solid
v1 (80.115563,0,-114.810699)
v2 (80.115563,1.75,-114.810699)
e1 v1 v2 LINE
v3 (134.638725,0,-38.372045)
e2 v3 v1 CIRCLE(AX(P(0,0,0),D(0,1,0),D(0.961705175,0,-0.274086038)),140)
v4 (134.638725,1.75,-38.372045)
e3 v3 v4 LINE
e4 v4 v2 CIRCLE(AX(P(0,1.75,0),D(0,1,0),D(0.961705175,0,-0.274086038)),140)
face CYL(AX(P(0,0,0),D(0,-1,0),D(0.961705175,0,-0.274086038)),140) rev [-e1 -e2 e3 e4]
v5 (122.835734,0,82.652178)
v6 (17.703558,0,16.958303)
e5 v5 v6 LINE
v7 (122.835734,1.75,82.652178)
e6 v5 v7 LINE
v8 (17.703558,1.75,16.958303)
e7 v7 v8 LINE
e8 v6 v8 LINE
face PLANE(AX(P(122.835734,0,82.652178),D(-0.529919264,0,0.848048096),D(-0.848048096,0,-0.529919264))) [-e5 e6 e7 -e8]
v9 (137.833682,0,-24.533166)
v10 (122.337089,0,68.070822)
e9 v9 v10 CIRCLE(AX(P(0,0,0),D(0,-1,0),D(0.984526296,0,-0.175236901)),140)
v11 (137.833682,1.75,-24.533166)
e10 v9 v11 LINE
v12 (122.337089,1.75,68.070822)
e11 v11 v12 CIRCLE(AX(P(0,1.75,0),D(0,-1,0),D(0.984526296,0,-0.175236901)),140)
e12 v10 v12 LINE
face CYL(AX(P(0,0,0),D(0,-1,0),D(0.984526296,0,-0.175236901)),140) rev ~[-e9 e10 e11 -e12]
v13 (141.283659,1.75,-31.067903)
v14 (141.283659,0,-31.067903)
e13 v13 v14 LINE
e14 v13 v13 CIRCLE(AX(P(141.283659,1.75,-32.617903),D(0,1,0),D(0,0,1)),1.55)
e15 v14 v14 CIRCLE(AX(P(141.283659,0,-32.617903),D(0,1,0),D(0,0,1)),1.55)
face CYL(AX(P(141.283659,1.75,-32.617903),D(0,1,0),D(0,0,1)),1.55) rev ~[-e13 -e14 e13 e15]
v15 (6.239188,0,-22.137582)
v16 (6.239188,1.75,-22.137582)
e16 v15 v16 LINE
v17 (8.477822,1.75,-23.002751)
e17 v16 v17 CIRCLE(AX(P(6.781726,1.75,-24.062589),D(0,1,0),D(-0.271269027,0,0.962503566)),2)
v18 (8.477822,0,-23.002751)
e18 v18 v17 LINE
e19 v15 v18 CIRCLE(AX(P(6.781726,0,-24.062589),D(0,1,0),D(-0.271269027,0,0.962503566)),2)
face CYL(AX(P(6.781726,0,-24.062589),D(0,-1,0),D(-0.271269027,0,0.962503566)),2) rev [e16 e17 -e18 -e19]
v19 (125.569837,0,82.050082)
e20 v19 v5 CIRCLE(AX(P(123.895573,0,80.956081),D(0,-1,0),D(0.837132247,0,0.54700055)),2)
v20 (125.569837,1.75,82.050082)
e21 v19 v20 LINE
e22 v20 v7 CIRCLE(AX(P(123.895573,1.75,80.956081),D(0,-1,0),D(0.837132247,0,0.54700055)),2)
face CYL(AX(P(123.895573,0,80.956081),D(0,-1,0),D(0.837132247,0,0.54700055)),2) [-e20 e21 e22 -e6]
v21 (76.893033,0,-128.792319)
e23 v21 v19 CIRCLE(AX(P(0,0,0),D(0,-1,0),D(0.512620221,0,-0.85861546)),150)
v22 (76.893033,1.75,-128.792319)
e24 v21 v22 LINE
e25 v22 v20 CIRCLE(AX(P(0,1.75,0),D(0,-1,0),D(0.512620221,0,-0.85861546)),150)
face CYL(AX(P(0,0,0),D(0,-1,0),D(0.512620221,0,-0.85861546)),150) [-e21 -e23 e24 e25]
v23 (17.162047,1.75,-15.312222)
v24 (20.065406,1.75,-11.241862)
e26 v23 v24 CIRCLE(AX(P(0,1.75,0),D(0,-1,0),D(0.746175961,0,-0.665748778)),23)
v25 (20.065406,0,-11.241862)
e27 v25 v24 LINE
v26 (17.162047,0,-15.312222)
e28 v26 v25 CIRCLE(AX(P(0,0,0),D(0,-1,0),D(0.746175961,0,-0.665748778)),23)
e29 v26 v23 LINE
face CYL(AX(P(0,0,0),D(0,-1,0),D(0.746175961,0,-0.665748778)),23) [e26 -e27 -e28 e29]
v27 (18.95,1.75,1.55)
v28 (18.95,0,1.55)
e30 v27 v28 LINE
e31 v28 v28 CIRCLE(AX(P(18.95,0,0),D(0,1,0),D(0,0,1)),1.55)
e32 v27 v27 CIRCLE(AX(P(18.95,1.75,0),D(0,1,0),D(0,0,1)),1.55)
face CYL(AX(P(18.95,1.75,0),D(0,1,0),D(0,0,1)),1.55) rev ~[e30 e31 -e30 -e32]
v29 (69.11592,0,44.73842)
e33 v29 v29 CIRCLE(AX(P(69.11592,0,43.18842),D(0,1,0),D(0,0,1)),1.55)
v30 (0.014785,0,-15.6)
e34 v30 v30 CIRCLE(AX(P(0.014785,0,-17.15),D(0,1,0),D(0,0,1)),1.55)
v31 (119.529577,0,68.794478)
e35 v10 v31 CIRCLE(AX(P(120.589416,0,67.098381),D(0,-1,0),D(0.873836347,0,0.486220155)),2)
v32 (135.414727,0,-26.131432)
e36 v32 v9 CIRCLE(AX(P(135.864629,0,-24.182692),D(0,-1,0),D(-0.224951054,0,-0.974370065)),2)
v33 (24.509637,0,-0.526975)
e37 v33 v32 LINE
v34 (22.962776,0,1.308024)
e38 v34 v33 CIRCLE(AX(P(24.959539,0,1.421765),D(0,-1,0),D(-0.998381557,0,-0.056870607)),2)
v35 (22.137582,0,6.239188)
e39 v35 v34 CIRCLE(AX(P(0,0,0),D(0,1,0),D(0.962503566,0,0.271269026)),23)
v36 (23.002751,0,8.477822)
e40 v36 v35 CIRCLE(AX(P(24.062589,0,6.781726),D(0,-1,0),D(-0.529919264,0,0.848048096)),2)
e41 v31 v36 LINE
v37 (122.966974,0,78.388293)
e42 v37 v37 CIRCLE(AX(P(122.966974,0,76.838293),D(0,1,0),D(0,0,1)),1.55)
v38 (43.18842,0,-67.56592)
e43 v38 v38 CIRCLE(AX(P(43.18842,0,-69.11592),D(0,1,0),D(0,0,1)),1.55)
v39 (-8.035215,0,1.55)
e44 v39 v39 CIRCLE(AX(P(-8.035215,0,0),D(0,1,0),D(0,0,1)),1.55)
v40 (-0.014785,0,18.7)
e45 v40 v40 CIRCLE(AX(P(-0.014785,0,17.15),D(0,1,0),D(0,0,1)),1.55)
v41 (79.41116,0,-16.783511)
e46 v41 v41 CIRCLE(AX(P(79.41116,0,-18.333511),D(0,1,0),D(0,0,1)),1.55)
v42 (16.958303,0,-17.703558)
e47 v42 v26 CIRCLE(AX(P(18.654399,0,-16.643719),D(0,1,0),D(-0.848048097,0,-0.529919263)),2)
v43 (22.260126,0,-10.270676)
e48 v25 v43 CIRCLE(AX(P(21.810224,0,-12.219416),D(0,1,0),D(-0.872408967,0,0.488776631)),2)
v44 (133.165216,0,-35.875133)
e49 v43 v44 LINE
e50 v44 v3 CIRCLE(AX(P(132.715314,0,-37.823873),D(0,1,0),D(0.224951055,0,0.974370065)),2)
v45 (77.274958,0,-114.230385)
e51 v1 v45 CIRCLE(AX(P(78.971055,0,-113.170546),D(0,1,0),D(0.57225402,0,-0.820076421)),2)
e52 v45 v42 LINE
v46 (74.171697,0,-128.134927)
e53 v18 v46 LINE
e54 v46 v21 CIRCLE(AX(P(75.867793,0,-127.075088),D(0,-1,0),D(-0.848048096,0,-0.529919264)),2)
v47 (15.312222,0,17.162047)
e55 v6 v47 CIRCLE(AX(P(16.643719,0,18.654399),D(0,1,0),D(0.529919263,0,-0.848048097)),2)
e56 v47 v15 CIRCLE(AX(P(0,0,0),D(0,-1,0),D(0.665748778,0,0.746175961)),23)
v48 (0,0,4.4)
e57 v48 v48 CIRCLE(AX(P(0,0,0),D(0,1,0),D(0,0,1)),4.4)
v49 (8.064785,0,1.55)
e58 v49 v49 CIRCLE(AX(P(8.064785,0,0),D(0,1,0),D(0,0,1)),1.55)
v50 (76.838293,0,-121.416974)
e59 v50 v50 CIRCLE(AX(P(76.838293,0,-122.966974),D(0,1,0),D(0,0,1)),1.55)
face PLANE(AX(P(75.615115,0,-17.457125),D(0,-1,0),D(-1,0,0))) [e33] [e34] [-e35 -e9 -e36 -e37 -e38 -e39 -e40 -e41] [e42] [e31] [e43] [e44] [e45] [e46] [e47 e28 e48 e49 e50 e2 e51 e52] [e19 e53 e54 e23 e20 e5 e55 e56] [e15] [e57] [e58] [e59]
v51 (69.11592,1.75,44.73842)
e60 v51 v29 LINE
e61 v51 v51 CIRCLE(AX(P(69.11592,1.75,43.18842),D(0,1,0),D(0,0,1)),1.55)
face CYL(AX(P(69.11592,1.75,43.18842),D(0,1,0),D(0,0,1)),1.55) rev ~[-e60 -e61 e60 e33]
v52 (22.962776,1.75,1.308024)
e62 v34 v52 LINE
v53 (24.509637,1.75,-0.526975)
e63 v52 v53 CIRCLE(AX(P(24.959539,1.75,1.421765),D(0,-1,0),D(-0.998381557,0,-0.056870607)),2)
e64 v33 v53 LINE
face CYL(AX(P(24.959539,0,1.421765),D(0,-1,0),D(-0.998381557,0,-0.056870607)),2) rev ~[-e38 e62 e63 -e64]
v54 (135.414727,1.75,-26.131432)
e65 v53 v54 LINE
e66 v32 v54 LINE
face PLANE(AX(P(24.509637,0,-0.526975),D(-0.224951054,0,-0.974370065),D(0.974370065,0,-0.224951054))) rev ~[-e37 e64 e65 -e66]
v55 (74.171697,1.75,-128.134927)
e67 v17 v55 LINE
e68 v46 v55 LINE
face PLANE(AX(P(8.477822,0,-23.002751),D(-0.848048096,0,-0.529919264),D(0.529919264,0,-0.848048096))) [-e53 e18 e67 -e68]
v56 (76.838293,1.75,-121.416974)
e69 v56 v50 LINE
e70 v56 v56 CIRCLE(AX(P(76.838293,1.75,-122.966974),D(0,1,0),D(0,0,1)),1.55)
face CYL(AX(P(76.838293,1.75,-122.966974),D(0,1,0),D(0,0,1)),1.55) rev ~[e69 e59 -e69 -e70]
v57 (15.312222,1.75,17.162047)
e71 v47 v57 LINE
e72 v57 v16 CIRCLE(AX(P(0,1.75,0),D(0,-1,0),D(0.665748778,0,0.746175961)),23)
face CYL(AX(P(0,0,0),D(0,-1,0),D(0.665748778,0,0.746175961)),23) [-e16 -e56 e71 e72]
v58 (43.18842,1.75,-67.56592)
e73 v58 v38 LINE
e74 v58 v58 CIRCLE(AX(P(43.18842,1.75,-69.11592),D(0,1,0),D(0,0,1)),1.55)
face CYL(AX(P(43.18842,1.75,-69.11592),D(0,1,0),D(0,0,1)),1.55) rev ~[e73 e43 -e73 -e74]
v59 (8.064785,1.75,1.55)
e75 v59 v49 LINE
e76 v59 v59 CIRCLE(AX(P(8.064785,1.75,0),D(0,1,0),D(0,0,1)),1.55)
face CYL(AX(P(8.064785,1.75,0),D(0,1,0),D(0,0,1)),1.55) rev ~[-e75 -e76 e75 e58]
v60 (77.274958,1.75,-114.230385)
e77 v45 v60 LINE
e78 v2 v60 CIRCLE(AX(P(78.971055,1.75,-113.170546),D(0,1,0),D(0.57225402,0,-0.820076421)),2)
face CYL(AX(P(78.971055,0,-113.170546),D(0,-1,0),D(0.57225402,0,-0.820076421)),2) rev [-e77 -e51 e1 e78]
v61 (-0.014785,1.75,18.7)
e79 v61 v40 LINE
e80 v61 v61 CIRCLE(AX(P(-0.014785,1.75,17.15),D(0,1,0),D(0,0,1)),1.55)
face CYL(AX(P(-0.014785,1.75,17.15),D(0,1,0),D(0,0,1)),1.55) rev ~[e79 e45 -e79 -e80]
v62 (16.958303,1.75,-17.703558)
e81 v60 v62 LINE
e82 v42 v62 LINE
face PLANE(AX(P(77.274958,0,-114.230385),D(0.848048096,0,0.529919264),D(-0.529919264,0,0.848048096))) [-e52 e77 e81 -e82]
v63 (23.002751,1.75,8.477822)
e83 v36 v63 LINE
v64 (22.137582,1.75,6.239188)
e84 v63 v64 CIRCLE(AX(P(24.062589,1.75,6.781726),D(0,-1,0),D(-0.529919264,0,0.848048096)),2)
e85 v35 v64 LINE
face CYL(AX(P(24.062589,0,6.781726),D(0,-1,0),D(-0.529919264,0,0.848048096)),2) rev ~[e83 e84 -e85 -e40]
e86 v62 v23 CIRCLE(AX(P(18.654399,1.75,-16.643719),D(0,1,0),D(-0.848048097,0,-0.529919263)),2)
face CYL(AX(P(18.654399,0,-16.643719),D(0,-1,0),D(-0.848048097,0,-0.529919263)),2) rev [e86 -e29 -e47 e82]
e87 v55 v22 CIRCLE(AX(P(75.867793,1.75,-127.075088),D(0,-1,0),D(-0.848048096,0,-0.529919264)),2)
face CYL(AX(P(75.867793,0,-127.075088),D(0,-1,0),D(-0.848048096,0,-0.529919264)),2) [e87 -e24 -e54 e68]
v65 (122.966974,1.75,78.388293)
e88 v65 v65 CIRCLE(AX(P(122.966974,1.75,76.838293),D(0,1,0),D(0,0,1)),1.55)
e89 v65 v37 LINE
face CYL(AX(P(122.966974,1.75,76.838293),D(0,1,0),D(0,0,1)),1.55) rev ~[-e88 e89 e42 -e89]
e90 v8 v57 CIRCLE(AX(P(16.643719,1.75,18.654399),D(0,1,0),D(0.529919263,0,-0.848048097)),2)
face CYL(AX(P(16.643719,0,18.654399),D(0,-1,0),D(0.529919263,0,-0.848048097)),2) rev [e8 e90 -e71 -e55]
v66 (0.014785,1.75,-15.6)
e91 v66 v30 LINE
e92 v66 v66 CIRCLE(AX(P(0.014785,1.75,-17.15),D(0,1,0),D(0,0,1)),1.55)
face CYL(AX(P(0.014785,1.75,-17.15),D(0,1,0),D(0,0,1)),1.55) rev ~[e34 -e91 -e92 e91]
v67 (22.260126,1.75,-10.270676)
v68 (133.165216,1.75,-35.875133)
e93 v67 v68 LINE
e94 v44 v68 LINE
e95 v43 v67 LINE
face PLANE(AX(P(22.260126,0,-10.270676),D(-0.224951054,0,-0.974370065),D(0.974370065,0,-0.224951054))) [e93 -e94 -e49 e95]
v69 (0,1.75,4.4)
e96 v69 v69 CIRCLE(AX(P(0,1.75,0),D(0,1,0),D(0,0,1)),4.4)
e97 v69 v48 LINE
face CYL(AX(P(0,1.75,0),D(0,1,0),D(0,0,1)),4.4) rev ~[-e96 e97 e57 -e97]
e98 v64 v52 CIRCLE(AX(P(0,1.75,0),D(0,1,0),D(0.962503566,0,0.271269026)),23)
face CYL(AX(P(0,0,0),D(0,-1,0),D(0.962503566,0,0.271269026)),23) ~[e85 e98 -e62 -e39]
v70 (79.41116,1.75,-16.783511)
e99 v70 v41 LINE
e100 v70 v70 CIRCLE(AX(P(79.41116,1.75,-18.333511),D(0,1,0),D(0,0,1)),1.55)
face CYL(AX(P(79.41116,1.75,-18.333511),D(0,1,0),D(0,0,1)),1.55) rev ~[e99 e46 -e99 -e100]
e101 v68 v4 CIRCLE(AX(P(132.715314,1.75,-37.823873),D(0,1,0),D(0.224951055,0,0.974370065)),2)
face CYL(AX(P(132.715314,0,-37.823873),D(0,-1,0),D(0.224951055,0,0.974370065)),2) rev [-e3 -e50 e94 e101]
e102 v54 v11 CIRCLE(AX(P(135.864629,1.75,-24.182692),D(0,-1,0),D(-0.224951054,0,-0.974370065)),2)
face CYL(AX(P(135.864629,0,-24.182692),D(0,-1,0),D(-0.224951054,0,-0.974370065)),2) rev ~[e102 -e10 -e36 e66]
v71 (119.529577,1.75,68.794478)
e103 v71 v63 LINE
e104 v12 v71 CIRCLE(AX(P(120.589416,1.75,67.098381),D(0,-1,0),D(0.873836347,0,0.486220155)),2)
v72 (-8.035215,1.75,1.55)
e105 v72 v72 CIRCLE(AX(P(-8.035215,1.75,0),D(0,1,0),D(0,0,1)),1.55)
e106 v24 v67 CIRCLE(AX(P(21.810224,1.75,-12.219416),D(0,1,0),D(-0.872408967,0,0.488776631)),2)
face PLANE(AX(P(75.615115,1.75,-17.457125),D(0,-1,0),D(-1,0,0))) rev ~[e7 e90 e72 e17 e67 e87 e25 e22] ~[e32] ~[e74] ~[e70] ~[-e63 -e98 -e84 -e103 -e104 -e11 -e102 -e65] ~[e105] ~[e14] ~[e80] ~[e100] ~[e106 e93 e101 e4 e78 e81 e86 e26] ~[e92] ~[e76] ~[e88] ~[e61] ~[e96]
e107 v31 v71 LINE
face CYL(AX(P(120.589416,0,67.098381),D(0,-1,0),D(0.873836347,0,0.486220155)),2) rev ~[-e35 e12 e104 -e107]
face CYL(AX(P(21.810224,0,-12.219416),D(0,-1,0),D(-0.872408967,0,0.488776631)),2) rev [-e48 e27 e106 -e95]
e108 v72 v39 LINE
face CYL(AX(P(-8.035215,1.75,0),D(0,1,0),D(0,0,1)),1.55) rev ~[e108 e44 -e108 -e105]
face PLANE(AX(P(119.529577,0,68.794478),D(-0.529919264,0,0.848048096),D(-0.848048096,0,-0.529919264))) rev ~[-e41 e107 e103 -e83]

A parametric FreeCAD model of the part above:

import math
import FreeCAD as App
import Part
import Sketcher
Q = App.Units.Quantity

doc = App.newDocument("Part")
params = doc.addObject("Spreadsheet::Sheet", "Params")
for row, (alias, value) in enumerate([
    ("sketch1_radius", "2 mm"),
    ("sketch1_radius2", "23 mm"),
    ("sketch1_radius3", "150 mm"),
    ("sketch1_radius4", "140 mm"),
    ("pad1_length", "1.75 mm"),
    ("sketch2_diameter", "8.8 mm"),
    ("sketch3_diameter", "3.1 mm"),
    ("sketch4_diameter", "3.1 mm"),
    ("sketch5_diameter", "3.1 mm"),
    ("sketch6_diameter", "3.1 mm"),
    ("sketch7_diameter", "3.1 mm"),
    ("sketch8_diameter", "3.1 mm"),
    ("sketch9_diameter", "3.1 mm"),
    ("sketch10_diameter", "3.1 mm"),
    ("sketch11_diameter", "3.1 mm"),
    ("sketch12_diameter", "3.1 mm"),
    ("sketch13_diameter", "3.1 mm"),
], start=1):
    params.set(f"A{row}", alias)
    params.set(f"B{row}", "=" + value)
    params.setAlias(f"B{row}", alias)

body = doc.addObject("PartDesign::Body", "Body")

# Sketch on XZ plane
sketch1 = doc.addObject("Sketcher::SketchObject", "Sketch")
body.addObject(sketch1)
sketch1.AttachmentSupport = (doc.XZ_Plane, [""])
sketch1.MapMode = "FlatFace"
sketch1.addGeometry(Part.LineSegment(App.Vector(74.171697, -128.134927, 0), App.Vector(8.477822, -23.002751, 0)), False)
sketch1.addGeometry(Part.ArcOfCircle(Part.Circle(App.Vector(6.781726, -24.062589, 0), App.Vector(0, 0, 1), 2), math.radians(32), math.radians(105.739795)), False)
sketch1.addGeometry(Part.ArcOfCircle(Part.Circle(App.Vector(0, 0, 0), App.Vector(0, 0, 1), 23), math.radians(48.260205), math.radians(285.739795)), False)
sketch1.addGeometry(Part.ArcOfCircle(Part.Circle(App.Vector(16.643719, 18.654399, 0), App.Vector(0, 0, 1), 2), math.radians(-131.739795), math.radians(-58)), False)
sketch1.addGeometry(Part.LineSegment(App.Vector(17.703558, 16.958303, 0), App.Vector(122.835734, 82.652178, 0)), False)
sketch1.addGeometry(Part.ArcOfCircle(Part.Circle(App.Vector(123.895573, 80.956081, 0), App.Vector(0, 0, 1), 2), math.radians(33.161481), math.radians(122)), False)
sketch1.addGeometry(Part.ArcOfCircle(Part.Circle(App.Vector(0, 0, 0), App.Vector(0, 0, 1), 150), math.radians(-59.16148), math.radians(33.16148)), False)
sketch1.addGeometry(Part.ArcOfCircle(Part.Circle(App.Vector(75.867793, -127.075088, 0), App.Vector(0, 0, 1), 2), math.radians(-148), math.radians(-59.16148)), False)
sketch1.addGeometry(Part.LineSegment(App.Vector(24.509637, -0.526975, 0), App.Vector(135.414727, -26.131432, 0)), False)
sketch1.addGeometry(Part.ArcOfCircle(Part.Circle(App.Vector(135.864629, -24.182692, 0), App.Vector(0, 0, 1), 2), math.radians(-103), math.radians(-10.092445)), False)
sketch1.addGeometry(Part.ArcOfCircle(Part.Circle(App.Vector(0, 0, 0), App.Vector(0, 0, 1), 140), math.radians(-10.092445), math.radians(29.092445)), False)
sketch1.addGeometry(Part.ArcOfCircle(Part.Circle(App.Vector(120.589416, 67.098381, 0), App.Vector(0, 0, 1), 2), math.radians(29.092445), math.radians(122)), False)
sketch1.addGeometry(Part.LineSegment(App.Vector(119.529577, 68.794478, 0), App.Vector(23.002751, 8.477822, 0)), False)
sketch1.addGeometry(Part.ArcOfCircle(Part.Circle(App.Vector(24.062589, 6.781726, 0), App.Vector(0, 0, 1), 2), math.radians(122), math.radians(195.739795)), False)
sketch1.addGeometry(Part.ArcOfCircle(Part.Circle(App.Vector(0, 0, 0), App.Vector(0, 0, 1), 23), math.radians(3.260205), math.radians(15.739795)), False)
sketch1.addGeometry(Part.ArcOfCircle(Part.Circle(App.Vector(24.959539, 1.421765, 0), App.Vector(0, 0, 1), 2), math.radians(-176.739795), math.radians(-103)), False)
sketch1.addGeometry(Part.ArcOfCircle(Part.Circle(App.Vector(21.810224, -12.219416, 0), App.Vector(0, 0, 1), 2), math.radians(77), math.radians(150.739795)), False)
sketch1.addGeometry(Part.ArcOfCircle(Part.Circle(App.Vector(0, 0, 0), App.Vector(0, 0, 1), 23), math.radians(-41.739795), math.radians(-29.260205)), False)
sketch1.addGeometry(Part.ArcOfCircle(Part.Circle(App.Vector(18.654399, -16.643719, 0), App.Vector(0, 0, 1), 2), math.radians(138.260205), math.radians(212)), False)
sketch1.addGeometry(Part.LineSegment(App.Vector(16.958303, -17.703558, 0), App.Vector(77.274958, -114.230385, 0)), False)
sketch1.addGeometry(Part.ArcOfCircle(Part.Circle(App.Vector(78.971055, -113.170546, 0), App.Vector(0, 0, 1), 2), math.radians(-148), math.radians(-55.092445)), False)
sketch1.addGeometry(Part.ArcOfCircle(Part.Circle(App.Vector(0, 0, 0), App.Vector(0, 0, 1), 140), math.radians(-55.092445), math.radians(-15.907555)), False)
sketch1.addGeometry(Part.ArcOfCircle(Part.Circle(App.Vector(132.715314, -37.823873, 0), App.Vector(0, 0, 1), 2), math.radians(-15.907555), math.radians(77)), False)
sketch1.addGeometry(Part.LineSegment(App.Vector(133.165216, -35.875133, 0), App.Vector(22.260126, -10.270676, 0)), False)
sketch1.addConstraint(Sketcher.Constraint("Tangent", 0, 2, 1, 1))
sketch1.addConstraint(Sketcher.Constraint("Tangent", 1, 2, 2, 2))
sketch1.addConstraint(Sketcher.Constraint("Tangent", 2, 1, 3, 1))
sketch1.addConstraint(Sketcher.Constraint("Tangent", 3, 2, 4, 1))
sketch1.addConstraint(Sketcher.Constraint("Tangent", 4, 2, 5, 2))
sketch1.addConstraint(Sketcher.Constraint("Tangent", 5, 1, 6, 2))
sketch1.addConstraint(Sketcher.Constraint("Tangent", 6, 1, 7, 2))
sketch1.addConstraint(Sketcher.Constraint("Tangent", 7, 1, 0, 1))
sketch1.addConstraint(Sketcher.Constraint("Tangent", 8, 2, 9, 1))
sketch1.addConstraint(Sketcher.Constraint("Tangent", 9, 2, 10, 1))
sketch1.addConstraint(Sketcher.Constraint("Tangent", 10, 2, 11, 1))
sketch1.addConstraint(Sketcher.Constraint("Tangent", 11, 2, 12, 1))
sketch1.addConstraint(Sketcher.Constraint("Tangent", 12, 2, 13, 1))
sketch1.addConstraint(Sketcher.Constraint("Tangent", 13, 2, 14, 2))
sketch1.addConstraint(Sketcher.Constraint("Tangent", 14, 1, 15, 1))
sketch1.addConstraint(Sketcher.Constraint("Tangent", 15, 2, 8, 1))
sketch1.addConstraint(Sketcher.Constraint("Tangent", 16, 2, 17, 2))
sketch1.addConstraint(Sketcher.Constraint("Tangent", 17, 1, 18, 1))
sketch1.addConstraint(Sketcher.Constraint("Tangent", 18, 2, 19, 1))
sketch1.addConstraint(Sketcher.Constraint("Tangent", 19, 2, 20, 1))
sketch1.addConstraint(Sketcher.Constraint("Tangent", 20, 2, 21, 1))
sketch1.addConstraint(Sketcher.Constraint("Tangent", 21, 2, 22, 1))
sketch1.addConstraint(Sketcher.Constraint("Tangent", 22, 2, 23, 1))
sketch1.addConstraint(Sketcher.Constraint("Tangent", 23, 2, 16, 1))
sketch1.addConstraint(Sketcher.Constraint("Coincident", 2, 3, -1, 1))
sketch1.addConstraint(Sketcher.Constraint("Coincident", 6, 3, -1, 1))
sketch1.addConstraint(Sketcher.Constraint("Coincident", 10, 3, -1, 1))
sketch1.addConstraint(Sketcher.Constraint("Coincident", 14, 3, -1, 1))
sketch1.addConstraint(Sketcher.Constraint("Coincident", 17, 3, -1, 1))
sketch1.addConstraint(Sketcher.Constraint("Coincident", 21, 3, -1, 1))
sketch1.addConstraint(Sketcher.Constraint("Equal", 1, 3))
sketch1.addConstraint(Sketcher.Constraint("Equal", 3, 5))
sketch1.addConstraint(Sketcher.Constraint("Equal", 5, 7))
sketch1.addConstraint(Sketcher.Constraint("Equal", 7, 9))
sketch1.addConstraint(Sketcher.Constraint("Equal", 9, 11))
sketch1.addConstraint(Sketcher.Constraint("Equal", 11, 13))
sketch1.addConstraint(Sketcher.Constraint("Equal", 2, 14))
sketch1.addConstraint(Sketcher.Constraint("Equal", 13, 15))
sketch1.addConstraint(Sketcher.Constraint("Equal", 15, 16))
sketch1.addConstraint(Sketcher.Constraint("Equal", 14, 17))
sketch1.addConstraint(Sketcher.Constraint("Equal", 16, 18))
sketch1.addConstraint(Sketcher.Constraint("Equal", 18, 20))
sketch1.addConstraint(Sketcher.Constraint("Equal", 10, 21))
sketch1.addConstraint(Sketcher.Constraint("Equal", 20, 22))
sketch1.addConstraint(Sketcher.Constraint("Perpendicular", 0, 4))
sketch1.addConstraint(Sketcher.Constraint("Parallel", 4, 12))
sketch1.addConstraint(Sketcher.Constraint("Perpendicular", 12, 19))
sketch1.addConstraint(Sketcher.Constraint("Parallel", 8, 23))
sketch1.addConstraint(Sketcher.Constraint("Equal", 0, 4))
sketch1.addConstraint(Sketcher.Constraint("Equal", 8, 12))
sketch1.addConstraint(Sketcher.Constraint("Equal", 12, 19))
sketch1.addConstraint(Sketcher.Constraint("Equal", 19, 23))
sketch1.addConstraint(Sketcher.Constraint("Radius", 1, Q("2 mm")))
sketch1.addConstraint(Sketcher.Constraint("Radius", 2, Q("23 mm")))
sketch1.addConstraint(Sketcher.Constraint("Radius", 6, Q("150 mm")))
sketch1.addConstraint(Sketcher.Constraint("Radius", 10, Q("140 mm")))
sketch1.addConstraint(Sketcher.Constraint("Angle", 0, Q("122 deg")))
sketch1.addConstraint(Sketcher.Constraint("Angle", 8, Q("-13 deg")))
sketch1.addConstraint(Sketcher.Constraint("DistanceY", 5, 3, 5, 1, Q("1.094001 mm")))
sketch1.addConstraint(Sketcher.Constraint("DistanceX", -1, 1, 18, 3, Q("18.654399 mm")))
sketch1.setExpression("Constraints[52]", "Params.sketch1_radius")
sketch1.setExpression("Constraints[53]", "Params.sketch1_radius2")
sketch1.setExpression("Constraints[54]", "Params.sketch1_radius3")
sketch1.setExpression("Constraints[55]", "Params.sketch1_radius4")
pad1 = doc.addObject("PartDesign::Pad", "Pad")
body.addObject(pad1)
pad1.Profile = sketch1
pad1.setExpression("Length", "Params.pad1_length")
pad1.Reversed = True

# Sketch on XZ plane
sketch2 = doc.addObject("Sketcher::SketchObject", "Sketch001")
body.addObject(sketch2)
sketch2.AttachmentSupport = (doc.XZ_Plane, [""])
sketch2.MapMode = "FlatFace"
sketch2.AttachmentOffset = App.Placement(App.Vector(0, 0, -1.75), App.Rotation())
sketch2.addGeometry(Part.Circle(App.Vector(0, 0, 0), App.Vector(0, 0, 1), 4.4), False)
sketch2.addConstraint(Sketcher.Constraint("Coincident", 0, 3, -1, 1))
sketch2.addConstraint(Sketcher.Constraint("Diameter", 0, Q("8.8 mm")))
sketch2.setExpression("Constraints[1]", "Params.sketch2_diameter")
pocket1 = doc.addObject("PartDesign::Pocket", "Pocket")
body.addObject(pocket1)
pocket1.Profile = sketch2
pocket1.Type = "UpToFirst"
pocket1.Reversed = True

# Sketch on XZ plane
sketch3 = doc.addObject("Sketcher::SketchObject", "Sketch002")
body.addObject(sketch3)
sketch3.AttachmentSupport = (doc.XZ_Plane, [""])
sketch3.MapMode = "FlatFace"
sketch3.AttachmentOffset = App.Placement(App.Vector(0, 0, -1.75), App.Rotation())
sketch3.addGeometry(Part.Circle(App.Vector(8.064785, 0, 0), App.Vector(0, 0, 1), 1.55), False)
sketch3.addConstraint(Sketcher.Constraint("PointOnObject", 0, 3, -1))
sketch3.addConstraint(Sketcher.Constraint("Diameter", 0, Q("3.1 mm")))
sketch3.addConstraint(Sketcher.Constraint("DistanceX", -1, 1, 0, 3, Q("8.064785 mm")))
sketch3.setExpression("Constraints[1]", "Params.sketch3_diameter")
pocket2 = doc.addObject("PartDesign::Pocket", "Pocket001")
body.addObject(pocket2)
pocket2.Profile = sketch3
pocket2.Type = "UpToFirst"
pocket2.Reversed = True

# Sketch on XZ plane
sketch4 = doc.addObject("Sketcher::SketchObject", "Sketch003")
body.addObject(sketch4)
sketch4.AttachmentSupport = (doc.XZ_Plane, [""])
sketch4.MapMode = "FlatFace"
sketch4.AttachmentOffset = App.Placement(App.Vector(0, 0, -1.75), App.Rotation())
sketch4.addGeometry(Part.Circle(App.Vector(18.95, 0, 0), App.Vector(0, 0, 1), 1.55), False)
sketch4.addConstraint(Sketcher.Constraint("PointOnObject", 0, 3, -1))
sketch4.addConstraint(Sketcher.Constraint("Diameter", 0, Q("3.1 mm")))
sketch4.addConstraint(Sketcher.Constraint("DistanceX", -1, 1, 0, 3, Q("18.95 mm")))
sketch4.setExpression("Constraints[1]", "Params.sketch4_diameter")
pocket3 = doc.addObject("PartDesign::Pocket", "Pocket002")
body.addObject(pocket3)
pocket3.Profile = sketch4
pocket3.Type = "UpToFirst"
pocket3.Reversed = True

# Sketch on XZ plane
sketch5 = doc.addObject("Sketcher::SketchObject", "Sketch004")
body.addObject(sketch5)
sketch5.AttachmentSupport = (doc.XZ_Plane, [""])
sketch5.MapMode = "FlatFace"
sketch5.AttachmentOffset = App.Placement(App.Vector(0, 0, -1.75), App.Rotation())
sketch5.addGeometry(Part.Circle(App.Vector(-8.035215, 0, 0), App.Vector(0, 0, 1), 1.55), False)
sketch5.addConstraint(Sketcher.Constraint("PointOnObject", 0, 3, -1))
sketch5.addConstraint(Sketcher.Constraint("Diameter", 0, Q("3.1 mm")))
sketch5.addConstraint(Sketcher.Constraint("DistanceX", 0, 3, -1, 1, Q("8.035215 mm")))
sketch5.setExpression("Constraints[1]", "Params.sketch5_diameter")
pocket4 = doc.addObject("PartDesign::Pocket", "Pocket003")
body.addObject(pocket4)
pocket4.Profile = sketch5
pocket4.Type = "UpToFirst"
pocket4.Reversed = True

# Sketch on XZ plane
sketch6 = doc.addObject("Sketcher::SketchObject", "Sketch005")
body.addObject(sketch6)
sketch6.AttachmentSupport = (doc.XZ_Plane, [""])
sketch6.MapMode = "FlatFace"
sketch6.AttachmentOffset = App.Placement(App.Vector(0, 0, -1.75), App.Rotation())
sketch6.addGeometry(Part.Circle(App.Vector(0.014785, -17.15, 0), App.Vector(0, 0, 1), 1.55), False)
sketch6.addConstraint(Sketcher.Constraint("Diameter", 0, Q("3.1 mm")))
sketch6.addConstraint(Sketcher.Constraint("DistanceY", 0, 3, -1, 1, Q("17.15 mm")))
sketch6.addConstraint(Sketcher.Constraint("DistanceX", -1, 1, 0, 3, Q("0.014785 mm")))
sketch6.setExpression("Constraints[0]", "Params.sketch6_diameter")
pocket5 = doc.addObject("PartDesign::Pocket", "Pocket004")
body.addObject(pocket5)
pocket5.Profile = sketch6
pocket5.Type = "UpToFirst"
pocket5.Reversed = True

# Sketch on XZ plane
sketch7 = doc.addObject("Sketcher::SketchObject", "Sketch006")
body.addObject(sketch7)
sketch7.AttachmentSupport = (doc.XZ_Plane, [""])
sketch7.MapMode = "FlatFace"
sketch7.AttachmentOffset = App.Placement(App.Vector(0, 0, -1.75), App.Rotation())
sketch7.addGeometry(Part.Circle(App.Vector(-0.014785, 17.15, 0), App.Vector(0, 0, 1), 1.55), False)
sketch7.addConstraint(Sketcher.Constraint("Diameter", 0, Q("3.1 mm")))
sketch7.addConstraint(Sketcher.Constraint("DistanceY", -1, 1, 0, 3, Q("17.15 mm")))
sketch7.addConstraint(Sketcher.Constraint("DistanceX", 0, 3, -1, 1, Q("0.014785 mm")))
sketch7.setExpression("Constraints[0]", "Params.sketch7_diameter")
pocket6 = doc.addObject("PartDesign::Pocket", "Pocket005")
body.addObject(pocket6)
pocket6.Profile = sketch7
pocket6.Type = "UpToFirst"
pocket6.Reversed = True

# Sketch on XZ plane
sketch8 = doc.addObject("Sketcher::SketchObject", "Sketch007")
body.addObject(sketch8)
sketch8.AttachmentSupport = (doc.XZ_Plane, [""])
sketch8.MapMode = "FlatFace"
sketch8.AttachmentOffset = App.Placement(App.Vector(0, 0, -1.75), App.Rotation())
sketch8.addGeometry(Part.Circle(App.Vector(69.11592, 43.18842, 0), App.Vector(0, 0, 1), 1.55), False)
sketch8.addConstraint(Sketcher.Constraint("Diameter", 0, Q("3.1 mm")))
sketch8.addConstraint(Sketcher.Constraint("DistanceX", -1, 1, 0, 3, Q("69.11592 mm")))
sketch8.addConstraint(Sketcher.Constraint("DistanceY", -1, 1, 0, 3, Q("43.18842 mm")))
sketch8.setExpression("Constraints[0]", "Params.sketch8_diameter")
pocket7 = doc.addObject("PartDesign::Pocket", "Pocket006")
body.addObject(pocket7)
pocket7.Profile = sketch8
pocket7.Type = "UpToFirst"
pocket7.Reversed = True

# Sketch on XZ plane
sketch9 = doc.addObject("Sketcher::SketchObject", "Sketch008")
body.addObject(sketch9)
sketch9.AttachmentSupport = (doc.XZ_Plane, [""])
sketch9.MapMode = "FlatFace"
sketch9.AttachmentOffset = App.Placement(App.Vector(0, 0, -1.75), App.Rotation())
sketch9.addGeometry(Part.Circle(App.Vector(122.966974, 76.838293, 0), App.Vector(0, 0, 1), 1.55), False)
sketch9.addConstraint(Sketcher.Constraint("Diameter", 0, Q("3.1 mm")))
sketch9.addConstraint(Sketcher.Constraint("DistanceX", -1, 1, 0, 3, Q("122.966974 mm")))
sketch9.addConstraint(Sketcher.Constraint("DistanceY", -1, 1, 0, 3, Q("76.838293 mm")))
sketch9.setExpression("Constraints[0]", "Params.sketch9_diameter")
pocket8 = doc.addObject("PartDesign::Pocket", "Pocket007")
body.addObject(pocket8)
pocket8.Profile = sketch9
pocket8.Type = "UpToFirst"
pocket8.Reversed = True

# Sketch on XZ plane
sketch10 = doc.addObject("Sketcher::SketchObject", "Sketch009")
body.addObject(sketch10)
sketch10.AttachmentSupport = (doc.XZ_Plane, [""])
sketch10.MapMode = "FlatFace"
sketch10.AttachmentOffset = App.Placement(App.Vector(0, 0, -1.75), App.Rotation())
sketch10.addGeometry(Part.Circle(App.Vector(141.283659, -32.617903, 0), App.Vector(0, 0, 1), 1.55), False)
sketch10.addConstraint(Sketcher.Constraint("Diameter", 0, Q("3.1 mm")))
sketch10.addConstraint(Sketcher.Constraint("DistanceX", -1, 1, 0, 3, Q("141.283659 mm")))
sketch10.addConstraint(Sketcher.Constraint("DistanceY", 0, 3, -1, 1, Q("32.617903 mm")))
sketch10.setExpression("Constraints[0]", "Params.sketch10_diameter")
pocket9 = doc.addObject("PartDesign::Pocket", "Pocket008")
body.addObject(pocket9)
pocket9.Profile = sketch10
pocket9.Type = "UpToFirst"
pocket9.Reversed = True

# Sketch on XZ plane
sketch11 = doc.addObject("Sketcher::SketchObject", "Sketch010")
body.addObject(sketch11)
sketch11.AttachmentSupport = (doc.XZ_Plane, [""])
sketch11.MapMode = "FlatFace"
sketch11.AttachmentOffset = App.Placement(App.Vector(0, 0, -1.75), App.Rotation())
sketch11.addGeometry(Part.Circle(App.Vector(79.41116, -18.333511, 0), App.Vector(0, 0, 1), 1.55), False)
sketch11.addConstraint(Sketcher.Constraint("Diameter", 0, Q("3.1 mm")))
sketch11.addConstraint(Sketcher.Constraint("DistanceX", -1, 1, 0, 3, Q("79.41116 mm")))
sketch11.addConstraint(Sketcher.Constraint("DistanceY", 0, 3, -1, 1, Q("18.333511 mm")))
sketch11.setExpression("Constraints[0]", "Params.sketch11_diameter")
pocket10 = doc.addObject("PartDesign::Pocket", "Pocket009")
body.addObject(pocket10)
pocket10.Profile = sketch11
pocket10.Type = "UpToFirst"
pocket10.Reversed = True

# Sketch on XZ plane
sketch12 = doc.addObject("Sketcher::SketchObject", "Sketch011")
body.addObject(sketch12)
sketch12.AttachmentSupport = (doc.XZ_Plane, [""])
sketch12.MapMode = "FlatFace"
sketch12.AttachmentOffset = App.Placement(App.Vector(0, 0, -1.75), App.Rotation())
sketch12.addGeometry(Part.Circle(App.Vector(43.18842, -69.11592, 0), App.Vector(0, 0, 1), 1.55), False)
sketch12.addConstraint(Sketcher.Constraint("Diameter", 0, Q("3.1 mm")))
sketch12.addConstraint(Sketcher.Constraint("DistanceX", -1, 1, 0, 3, Q("43.18842 mm")))
sketch12.addConstraint(Sketcher.Constraint("DistanceY", 0, 3, -1, 1, Q("69.11592 mm")))
sketch12.setExpression("Constraints[0]", "Params.sketch12_diameter")
pocket11 = doc.addObject("PartDesign::Pocket", "Pocket010")
body.addObject(pocket11)
pocket11.Profile = sketch12
pocket11.Type = "UpToFirst"
pocket11.Reversed = True

# Sketch on XZ plane
sketch13 = doc.addObject("Sketcher::SketchObject", "Sketch012")
body.addObject(sketch13)
sketch13.AttachmentSupport = (doc.XZ_Plane, [""])
sketch13.MapMode = "FlatFace"
sketch13.AttachmentOffset = App.Placement(App.Vector(0, 0, -1.75), App.Rotation())
sketch13.addGeometry(Part.Circle(App.Vector(76.838293, -122.966974, 0), App.Vector(0, 0, 1), 1.55), False)
sketch13.addConstraint(Sketcher.Constraint("Diameter", 0, Q("3.1 mm")))
sketch13.addConstraint(Sketcher.Constraint("DistanceX", -1, 1, 0, 3, Q("76.838293 mm")))
sketch13.addConstraint(Sketcher.Constraint("DistanceY", 0, 3, -1, 1, Q("122.966974 mm")))
sketch13.setExpression("Constraints[0]", "Params.sketch13_diameter")
pocket12 = doc.addObject("PartDesign::Pocket", "Pocket011")
body.addObject(pocket12)
pocket12.Profile = sketch13
pocket12.Type = "UpToFirst"
pocket12.Reversed = True

doc.recompute()
